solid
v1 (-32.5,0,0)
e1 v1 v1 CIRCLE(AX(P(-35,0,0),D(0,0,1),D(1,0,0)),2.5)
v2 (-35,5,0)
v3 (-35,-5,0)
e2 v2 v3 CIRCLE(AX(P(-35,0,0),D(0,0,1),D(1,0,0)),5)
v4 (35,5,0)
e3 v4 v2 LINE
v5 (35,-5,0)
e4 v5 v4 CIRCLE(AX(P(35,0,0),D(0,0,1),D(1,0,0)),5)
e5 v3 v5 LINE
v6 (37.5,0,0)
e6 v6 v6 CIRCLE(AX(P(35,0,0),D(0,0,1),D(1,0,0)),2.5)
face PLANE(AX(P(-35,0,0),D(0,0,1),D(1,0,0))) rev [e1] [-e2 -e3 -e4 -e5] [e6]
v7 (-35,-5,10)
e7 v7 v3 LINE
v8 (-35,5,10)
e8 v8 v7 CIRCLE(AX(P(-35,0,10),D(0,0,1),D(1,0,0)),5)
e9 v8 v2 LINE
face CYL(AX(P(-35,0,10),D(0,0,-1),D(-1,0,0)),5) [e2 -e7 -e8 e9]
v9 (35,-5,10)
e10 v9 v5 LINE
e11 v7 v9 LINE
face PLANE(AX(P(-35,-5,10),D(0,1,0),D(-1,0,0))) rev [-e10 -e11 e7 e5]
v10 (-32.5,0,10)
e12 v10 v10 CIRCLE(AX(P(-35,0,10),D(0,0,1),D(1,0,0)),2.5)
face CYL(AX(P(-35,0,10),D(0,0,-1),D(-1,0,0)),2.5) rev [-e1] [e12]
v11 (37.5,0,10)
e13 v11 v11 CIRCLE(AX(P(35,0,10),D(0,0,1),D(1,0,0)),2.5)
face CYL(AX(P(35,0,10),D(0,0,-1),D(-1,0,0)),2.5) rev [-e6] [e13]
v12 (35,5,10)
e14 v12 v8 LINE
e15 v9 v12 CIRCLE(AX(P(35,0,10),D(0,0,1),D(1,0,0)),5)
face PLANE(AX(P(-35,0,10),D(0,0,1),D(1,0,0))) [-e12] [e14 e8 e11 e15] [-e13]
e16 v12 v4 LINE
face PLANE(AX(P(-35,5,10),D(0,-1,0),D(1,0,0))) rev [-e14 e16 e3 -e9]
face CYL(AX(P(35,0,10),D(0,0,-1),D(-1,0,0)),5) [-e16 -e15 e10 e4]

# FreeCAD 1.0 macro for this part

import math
import FreeCAD as App
import Part
import Sketcher

V = App.Vector
Q = App.Units.Quantity

doc = App.newDocument("Part")
body = doc.addObject("PartDesign::Body", "Body")

# Sketch on XY plane
sketch1 = body.newObject("Sketcher::SketchObject", "Sketch")
sketch1.AttachmentSupport = (doc.getObject("XY_Plane"), [""])
sketch1.MapMode = "FlatFace"
sketch1.addGeometry([
    Part.LineSegment(V(35, 5, 0), V(-35, 5, 0)),  # 0
    Part.ArcOfCircle(Part.Circle(V(-35, 0, 0), V(0, 0, 1), 5), math.radians(90), math.radians(270)),  # 1
    Part.LineSegment(V(-35, -5, 0), V(35, -5, 0)),  # 2
    Part.ArcOfCircle(Part.Circle(V(35, 0, 0), V(0, 0, 1), 5), math.radians(-90), math.radians(90)),  # 3
    Part.Circle(V(35, 0, 0), V(0, 0, 1), 2.5),  # 4
    Part.Circle(V(-35, 0, 0), V(0, 0, 1), 2.5),  # 5
], False)
sketch1.addConstraint([
    Sketcher.Constraint("Tangent", 0, 2, 1, 1),
    Sketcher.Constraint("Tangent", 1, 2, 2, 1),
    Sketcher.Constraint("Tangent", 2, 2, 3, 1),
    Sketcher.Constraint("Tangent", 3, 2, 0, 1),
    Sketcher.Constraint("Horizontal", 0),
    Sketcher.Constraint("Horizontal", 2),
    Sketcher.Constraint("Coincident", 4, 3, 3, 3),
    Sketcher.Constraint("Coincident", 5, 3, 1, 3),
    Sketcher.Constraint("Equal", 4, 5),
    Sketcher.Constraint("Symmetric", 1, 3, 3, 3, -1, 1),
    Sketcher.Constraint("Diameter", 4, Q("5 mm")),
    Sketcher.Constraint("Radius", 1, Q("5 mm")),
    Sketcher.Constraint("DistanceX", 0, 2, 0, 1, Q("70 mm")),
])
pad1 = body.newObject("PartDesign::Pad", "Pad")
pad1.Profile = sketch1
pad1.Length = 10

doc.recompute()
